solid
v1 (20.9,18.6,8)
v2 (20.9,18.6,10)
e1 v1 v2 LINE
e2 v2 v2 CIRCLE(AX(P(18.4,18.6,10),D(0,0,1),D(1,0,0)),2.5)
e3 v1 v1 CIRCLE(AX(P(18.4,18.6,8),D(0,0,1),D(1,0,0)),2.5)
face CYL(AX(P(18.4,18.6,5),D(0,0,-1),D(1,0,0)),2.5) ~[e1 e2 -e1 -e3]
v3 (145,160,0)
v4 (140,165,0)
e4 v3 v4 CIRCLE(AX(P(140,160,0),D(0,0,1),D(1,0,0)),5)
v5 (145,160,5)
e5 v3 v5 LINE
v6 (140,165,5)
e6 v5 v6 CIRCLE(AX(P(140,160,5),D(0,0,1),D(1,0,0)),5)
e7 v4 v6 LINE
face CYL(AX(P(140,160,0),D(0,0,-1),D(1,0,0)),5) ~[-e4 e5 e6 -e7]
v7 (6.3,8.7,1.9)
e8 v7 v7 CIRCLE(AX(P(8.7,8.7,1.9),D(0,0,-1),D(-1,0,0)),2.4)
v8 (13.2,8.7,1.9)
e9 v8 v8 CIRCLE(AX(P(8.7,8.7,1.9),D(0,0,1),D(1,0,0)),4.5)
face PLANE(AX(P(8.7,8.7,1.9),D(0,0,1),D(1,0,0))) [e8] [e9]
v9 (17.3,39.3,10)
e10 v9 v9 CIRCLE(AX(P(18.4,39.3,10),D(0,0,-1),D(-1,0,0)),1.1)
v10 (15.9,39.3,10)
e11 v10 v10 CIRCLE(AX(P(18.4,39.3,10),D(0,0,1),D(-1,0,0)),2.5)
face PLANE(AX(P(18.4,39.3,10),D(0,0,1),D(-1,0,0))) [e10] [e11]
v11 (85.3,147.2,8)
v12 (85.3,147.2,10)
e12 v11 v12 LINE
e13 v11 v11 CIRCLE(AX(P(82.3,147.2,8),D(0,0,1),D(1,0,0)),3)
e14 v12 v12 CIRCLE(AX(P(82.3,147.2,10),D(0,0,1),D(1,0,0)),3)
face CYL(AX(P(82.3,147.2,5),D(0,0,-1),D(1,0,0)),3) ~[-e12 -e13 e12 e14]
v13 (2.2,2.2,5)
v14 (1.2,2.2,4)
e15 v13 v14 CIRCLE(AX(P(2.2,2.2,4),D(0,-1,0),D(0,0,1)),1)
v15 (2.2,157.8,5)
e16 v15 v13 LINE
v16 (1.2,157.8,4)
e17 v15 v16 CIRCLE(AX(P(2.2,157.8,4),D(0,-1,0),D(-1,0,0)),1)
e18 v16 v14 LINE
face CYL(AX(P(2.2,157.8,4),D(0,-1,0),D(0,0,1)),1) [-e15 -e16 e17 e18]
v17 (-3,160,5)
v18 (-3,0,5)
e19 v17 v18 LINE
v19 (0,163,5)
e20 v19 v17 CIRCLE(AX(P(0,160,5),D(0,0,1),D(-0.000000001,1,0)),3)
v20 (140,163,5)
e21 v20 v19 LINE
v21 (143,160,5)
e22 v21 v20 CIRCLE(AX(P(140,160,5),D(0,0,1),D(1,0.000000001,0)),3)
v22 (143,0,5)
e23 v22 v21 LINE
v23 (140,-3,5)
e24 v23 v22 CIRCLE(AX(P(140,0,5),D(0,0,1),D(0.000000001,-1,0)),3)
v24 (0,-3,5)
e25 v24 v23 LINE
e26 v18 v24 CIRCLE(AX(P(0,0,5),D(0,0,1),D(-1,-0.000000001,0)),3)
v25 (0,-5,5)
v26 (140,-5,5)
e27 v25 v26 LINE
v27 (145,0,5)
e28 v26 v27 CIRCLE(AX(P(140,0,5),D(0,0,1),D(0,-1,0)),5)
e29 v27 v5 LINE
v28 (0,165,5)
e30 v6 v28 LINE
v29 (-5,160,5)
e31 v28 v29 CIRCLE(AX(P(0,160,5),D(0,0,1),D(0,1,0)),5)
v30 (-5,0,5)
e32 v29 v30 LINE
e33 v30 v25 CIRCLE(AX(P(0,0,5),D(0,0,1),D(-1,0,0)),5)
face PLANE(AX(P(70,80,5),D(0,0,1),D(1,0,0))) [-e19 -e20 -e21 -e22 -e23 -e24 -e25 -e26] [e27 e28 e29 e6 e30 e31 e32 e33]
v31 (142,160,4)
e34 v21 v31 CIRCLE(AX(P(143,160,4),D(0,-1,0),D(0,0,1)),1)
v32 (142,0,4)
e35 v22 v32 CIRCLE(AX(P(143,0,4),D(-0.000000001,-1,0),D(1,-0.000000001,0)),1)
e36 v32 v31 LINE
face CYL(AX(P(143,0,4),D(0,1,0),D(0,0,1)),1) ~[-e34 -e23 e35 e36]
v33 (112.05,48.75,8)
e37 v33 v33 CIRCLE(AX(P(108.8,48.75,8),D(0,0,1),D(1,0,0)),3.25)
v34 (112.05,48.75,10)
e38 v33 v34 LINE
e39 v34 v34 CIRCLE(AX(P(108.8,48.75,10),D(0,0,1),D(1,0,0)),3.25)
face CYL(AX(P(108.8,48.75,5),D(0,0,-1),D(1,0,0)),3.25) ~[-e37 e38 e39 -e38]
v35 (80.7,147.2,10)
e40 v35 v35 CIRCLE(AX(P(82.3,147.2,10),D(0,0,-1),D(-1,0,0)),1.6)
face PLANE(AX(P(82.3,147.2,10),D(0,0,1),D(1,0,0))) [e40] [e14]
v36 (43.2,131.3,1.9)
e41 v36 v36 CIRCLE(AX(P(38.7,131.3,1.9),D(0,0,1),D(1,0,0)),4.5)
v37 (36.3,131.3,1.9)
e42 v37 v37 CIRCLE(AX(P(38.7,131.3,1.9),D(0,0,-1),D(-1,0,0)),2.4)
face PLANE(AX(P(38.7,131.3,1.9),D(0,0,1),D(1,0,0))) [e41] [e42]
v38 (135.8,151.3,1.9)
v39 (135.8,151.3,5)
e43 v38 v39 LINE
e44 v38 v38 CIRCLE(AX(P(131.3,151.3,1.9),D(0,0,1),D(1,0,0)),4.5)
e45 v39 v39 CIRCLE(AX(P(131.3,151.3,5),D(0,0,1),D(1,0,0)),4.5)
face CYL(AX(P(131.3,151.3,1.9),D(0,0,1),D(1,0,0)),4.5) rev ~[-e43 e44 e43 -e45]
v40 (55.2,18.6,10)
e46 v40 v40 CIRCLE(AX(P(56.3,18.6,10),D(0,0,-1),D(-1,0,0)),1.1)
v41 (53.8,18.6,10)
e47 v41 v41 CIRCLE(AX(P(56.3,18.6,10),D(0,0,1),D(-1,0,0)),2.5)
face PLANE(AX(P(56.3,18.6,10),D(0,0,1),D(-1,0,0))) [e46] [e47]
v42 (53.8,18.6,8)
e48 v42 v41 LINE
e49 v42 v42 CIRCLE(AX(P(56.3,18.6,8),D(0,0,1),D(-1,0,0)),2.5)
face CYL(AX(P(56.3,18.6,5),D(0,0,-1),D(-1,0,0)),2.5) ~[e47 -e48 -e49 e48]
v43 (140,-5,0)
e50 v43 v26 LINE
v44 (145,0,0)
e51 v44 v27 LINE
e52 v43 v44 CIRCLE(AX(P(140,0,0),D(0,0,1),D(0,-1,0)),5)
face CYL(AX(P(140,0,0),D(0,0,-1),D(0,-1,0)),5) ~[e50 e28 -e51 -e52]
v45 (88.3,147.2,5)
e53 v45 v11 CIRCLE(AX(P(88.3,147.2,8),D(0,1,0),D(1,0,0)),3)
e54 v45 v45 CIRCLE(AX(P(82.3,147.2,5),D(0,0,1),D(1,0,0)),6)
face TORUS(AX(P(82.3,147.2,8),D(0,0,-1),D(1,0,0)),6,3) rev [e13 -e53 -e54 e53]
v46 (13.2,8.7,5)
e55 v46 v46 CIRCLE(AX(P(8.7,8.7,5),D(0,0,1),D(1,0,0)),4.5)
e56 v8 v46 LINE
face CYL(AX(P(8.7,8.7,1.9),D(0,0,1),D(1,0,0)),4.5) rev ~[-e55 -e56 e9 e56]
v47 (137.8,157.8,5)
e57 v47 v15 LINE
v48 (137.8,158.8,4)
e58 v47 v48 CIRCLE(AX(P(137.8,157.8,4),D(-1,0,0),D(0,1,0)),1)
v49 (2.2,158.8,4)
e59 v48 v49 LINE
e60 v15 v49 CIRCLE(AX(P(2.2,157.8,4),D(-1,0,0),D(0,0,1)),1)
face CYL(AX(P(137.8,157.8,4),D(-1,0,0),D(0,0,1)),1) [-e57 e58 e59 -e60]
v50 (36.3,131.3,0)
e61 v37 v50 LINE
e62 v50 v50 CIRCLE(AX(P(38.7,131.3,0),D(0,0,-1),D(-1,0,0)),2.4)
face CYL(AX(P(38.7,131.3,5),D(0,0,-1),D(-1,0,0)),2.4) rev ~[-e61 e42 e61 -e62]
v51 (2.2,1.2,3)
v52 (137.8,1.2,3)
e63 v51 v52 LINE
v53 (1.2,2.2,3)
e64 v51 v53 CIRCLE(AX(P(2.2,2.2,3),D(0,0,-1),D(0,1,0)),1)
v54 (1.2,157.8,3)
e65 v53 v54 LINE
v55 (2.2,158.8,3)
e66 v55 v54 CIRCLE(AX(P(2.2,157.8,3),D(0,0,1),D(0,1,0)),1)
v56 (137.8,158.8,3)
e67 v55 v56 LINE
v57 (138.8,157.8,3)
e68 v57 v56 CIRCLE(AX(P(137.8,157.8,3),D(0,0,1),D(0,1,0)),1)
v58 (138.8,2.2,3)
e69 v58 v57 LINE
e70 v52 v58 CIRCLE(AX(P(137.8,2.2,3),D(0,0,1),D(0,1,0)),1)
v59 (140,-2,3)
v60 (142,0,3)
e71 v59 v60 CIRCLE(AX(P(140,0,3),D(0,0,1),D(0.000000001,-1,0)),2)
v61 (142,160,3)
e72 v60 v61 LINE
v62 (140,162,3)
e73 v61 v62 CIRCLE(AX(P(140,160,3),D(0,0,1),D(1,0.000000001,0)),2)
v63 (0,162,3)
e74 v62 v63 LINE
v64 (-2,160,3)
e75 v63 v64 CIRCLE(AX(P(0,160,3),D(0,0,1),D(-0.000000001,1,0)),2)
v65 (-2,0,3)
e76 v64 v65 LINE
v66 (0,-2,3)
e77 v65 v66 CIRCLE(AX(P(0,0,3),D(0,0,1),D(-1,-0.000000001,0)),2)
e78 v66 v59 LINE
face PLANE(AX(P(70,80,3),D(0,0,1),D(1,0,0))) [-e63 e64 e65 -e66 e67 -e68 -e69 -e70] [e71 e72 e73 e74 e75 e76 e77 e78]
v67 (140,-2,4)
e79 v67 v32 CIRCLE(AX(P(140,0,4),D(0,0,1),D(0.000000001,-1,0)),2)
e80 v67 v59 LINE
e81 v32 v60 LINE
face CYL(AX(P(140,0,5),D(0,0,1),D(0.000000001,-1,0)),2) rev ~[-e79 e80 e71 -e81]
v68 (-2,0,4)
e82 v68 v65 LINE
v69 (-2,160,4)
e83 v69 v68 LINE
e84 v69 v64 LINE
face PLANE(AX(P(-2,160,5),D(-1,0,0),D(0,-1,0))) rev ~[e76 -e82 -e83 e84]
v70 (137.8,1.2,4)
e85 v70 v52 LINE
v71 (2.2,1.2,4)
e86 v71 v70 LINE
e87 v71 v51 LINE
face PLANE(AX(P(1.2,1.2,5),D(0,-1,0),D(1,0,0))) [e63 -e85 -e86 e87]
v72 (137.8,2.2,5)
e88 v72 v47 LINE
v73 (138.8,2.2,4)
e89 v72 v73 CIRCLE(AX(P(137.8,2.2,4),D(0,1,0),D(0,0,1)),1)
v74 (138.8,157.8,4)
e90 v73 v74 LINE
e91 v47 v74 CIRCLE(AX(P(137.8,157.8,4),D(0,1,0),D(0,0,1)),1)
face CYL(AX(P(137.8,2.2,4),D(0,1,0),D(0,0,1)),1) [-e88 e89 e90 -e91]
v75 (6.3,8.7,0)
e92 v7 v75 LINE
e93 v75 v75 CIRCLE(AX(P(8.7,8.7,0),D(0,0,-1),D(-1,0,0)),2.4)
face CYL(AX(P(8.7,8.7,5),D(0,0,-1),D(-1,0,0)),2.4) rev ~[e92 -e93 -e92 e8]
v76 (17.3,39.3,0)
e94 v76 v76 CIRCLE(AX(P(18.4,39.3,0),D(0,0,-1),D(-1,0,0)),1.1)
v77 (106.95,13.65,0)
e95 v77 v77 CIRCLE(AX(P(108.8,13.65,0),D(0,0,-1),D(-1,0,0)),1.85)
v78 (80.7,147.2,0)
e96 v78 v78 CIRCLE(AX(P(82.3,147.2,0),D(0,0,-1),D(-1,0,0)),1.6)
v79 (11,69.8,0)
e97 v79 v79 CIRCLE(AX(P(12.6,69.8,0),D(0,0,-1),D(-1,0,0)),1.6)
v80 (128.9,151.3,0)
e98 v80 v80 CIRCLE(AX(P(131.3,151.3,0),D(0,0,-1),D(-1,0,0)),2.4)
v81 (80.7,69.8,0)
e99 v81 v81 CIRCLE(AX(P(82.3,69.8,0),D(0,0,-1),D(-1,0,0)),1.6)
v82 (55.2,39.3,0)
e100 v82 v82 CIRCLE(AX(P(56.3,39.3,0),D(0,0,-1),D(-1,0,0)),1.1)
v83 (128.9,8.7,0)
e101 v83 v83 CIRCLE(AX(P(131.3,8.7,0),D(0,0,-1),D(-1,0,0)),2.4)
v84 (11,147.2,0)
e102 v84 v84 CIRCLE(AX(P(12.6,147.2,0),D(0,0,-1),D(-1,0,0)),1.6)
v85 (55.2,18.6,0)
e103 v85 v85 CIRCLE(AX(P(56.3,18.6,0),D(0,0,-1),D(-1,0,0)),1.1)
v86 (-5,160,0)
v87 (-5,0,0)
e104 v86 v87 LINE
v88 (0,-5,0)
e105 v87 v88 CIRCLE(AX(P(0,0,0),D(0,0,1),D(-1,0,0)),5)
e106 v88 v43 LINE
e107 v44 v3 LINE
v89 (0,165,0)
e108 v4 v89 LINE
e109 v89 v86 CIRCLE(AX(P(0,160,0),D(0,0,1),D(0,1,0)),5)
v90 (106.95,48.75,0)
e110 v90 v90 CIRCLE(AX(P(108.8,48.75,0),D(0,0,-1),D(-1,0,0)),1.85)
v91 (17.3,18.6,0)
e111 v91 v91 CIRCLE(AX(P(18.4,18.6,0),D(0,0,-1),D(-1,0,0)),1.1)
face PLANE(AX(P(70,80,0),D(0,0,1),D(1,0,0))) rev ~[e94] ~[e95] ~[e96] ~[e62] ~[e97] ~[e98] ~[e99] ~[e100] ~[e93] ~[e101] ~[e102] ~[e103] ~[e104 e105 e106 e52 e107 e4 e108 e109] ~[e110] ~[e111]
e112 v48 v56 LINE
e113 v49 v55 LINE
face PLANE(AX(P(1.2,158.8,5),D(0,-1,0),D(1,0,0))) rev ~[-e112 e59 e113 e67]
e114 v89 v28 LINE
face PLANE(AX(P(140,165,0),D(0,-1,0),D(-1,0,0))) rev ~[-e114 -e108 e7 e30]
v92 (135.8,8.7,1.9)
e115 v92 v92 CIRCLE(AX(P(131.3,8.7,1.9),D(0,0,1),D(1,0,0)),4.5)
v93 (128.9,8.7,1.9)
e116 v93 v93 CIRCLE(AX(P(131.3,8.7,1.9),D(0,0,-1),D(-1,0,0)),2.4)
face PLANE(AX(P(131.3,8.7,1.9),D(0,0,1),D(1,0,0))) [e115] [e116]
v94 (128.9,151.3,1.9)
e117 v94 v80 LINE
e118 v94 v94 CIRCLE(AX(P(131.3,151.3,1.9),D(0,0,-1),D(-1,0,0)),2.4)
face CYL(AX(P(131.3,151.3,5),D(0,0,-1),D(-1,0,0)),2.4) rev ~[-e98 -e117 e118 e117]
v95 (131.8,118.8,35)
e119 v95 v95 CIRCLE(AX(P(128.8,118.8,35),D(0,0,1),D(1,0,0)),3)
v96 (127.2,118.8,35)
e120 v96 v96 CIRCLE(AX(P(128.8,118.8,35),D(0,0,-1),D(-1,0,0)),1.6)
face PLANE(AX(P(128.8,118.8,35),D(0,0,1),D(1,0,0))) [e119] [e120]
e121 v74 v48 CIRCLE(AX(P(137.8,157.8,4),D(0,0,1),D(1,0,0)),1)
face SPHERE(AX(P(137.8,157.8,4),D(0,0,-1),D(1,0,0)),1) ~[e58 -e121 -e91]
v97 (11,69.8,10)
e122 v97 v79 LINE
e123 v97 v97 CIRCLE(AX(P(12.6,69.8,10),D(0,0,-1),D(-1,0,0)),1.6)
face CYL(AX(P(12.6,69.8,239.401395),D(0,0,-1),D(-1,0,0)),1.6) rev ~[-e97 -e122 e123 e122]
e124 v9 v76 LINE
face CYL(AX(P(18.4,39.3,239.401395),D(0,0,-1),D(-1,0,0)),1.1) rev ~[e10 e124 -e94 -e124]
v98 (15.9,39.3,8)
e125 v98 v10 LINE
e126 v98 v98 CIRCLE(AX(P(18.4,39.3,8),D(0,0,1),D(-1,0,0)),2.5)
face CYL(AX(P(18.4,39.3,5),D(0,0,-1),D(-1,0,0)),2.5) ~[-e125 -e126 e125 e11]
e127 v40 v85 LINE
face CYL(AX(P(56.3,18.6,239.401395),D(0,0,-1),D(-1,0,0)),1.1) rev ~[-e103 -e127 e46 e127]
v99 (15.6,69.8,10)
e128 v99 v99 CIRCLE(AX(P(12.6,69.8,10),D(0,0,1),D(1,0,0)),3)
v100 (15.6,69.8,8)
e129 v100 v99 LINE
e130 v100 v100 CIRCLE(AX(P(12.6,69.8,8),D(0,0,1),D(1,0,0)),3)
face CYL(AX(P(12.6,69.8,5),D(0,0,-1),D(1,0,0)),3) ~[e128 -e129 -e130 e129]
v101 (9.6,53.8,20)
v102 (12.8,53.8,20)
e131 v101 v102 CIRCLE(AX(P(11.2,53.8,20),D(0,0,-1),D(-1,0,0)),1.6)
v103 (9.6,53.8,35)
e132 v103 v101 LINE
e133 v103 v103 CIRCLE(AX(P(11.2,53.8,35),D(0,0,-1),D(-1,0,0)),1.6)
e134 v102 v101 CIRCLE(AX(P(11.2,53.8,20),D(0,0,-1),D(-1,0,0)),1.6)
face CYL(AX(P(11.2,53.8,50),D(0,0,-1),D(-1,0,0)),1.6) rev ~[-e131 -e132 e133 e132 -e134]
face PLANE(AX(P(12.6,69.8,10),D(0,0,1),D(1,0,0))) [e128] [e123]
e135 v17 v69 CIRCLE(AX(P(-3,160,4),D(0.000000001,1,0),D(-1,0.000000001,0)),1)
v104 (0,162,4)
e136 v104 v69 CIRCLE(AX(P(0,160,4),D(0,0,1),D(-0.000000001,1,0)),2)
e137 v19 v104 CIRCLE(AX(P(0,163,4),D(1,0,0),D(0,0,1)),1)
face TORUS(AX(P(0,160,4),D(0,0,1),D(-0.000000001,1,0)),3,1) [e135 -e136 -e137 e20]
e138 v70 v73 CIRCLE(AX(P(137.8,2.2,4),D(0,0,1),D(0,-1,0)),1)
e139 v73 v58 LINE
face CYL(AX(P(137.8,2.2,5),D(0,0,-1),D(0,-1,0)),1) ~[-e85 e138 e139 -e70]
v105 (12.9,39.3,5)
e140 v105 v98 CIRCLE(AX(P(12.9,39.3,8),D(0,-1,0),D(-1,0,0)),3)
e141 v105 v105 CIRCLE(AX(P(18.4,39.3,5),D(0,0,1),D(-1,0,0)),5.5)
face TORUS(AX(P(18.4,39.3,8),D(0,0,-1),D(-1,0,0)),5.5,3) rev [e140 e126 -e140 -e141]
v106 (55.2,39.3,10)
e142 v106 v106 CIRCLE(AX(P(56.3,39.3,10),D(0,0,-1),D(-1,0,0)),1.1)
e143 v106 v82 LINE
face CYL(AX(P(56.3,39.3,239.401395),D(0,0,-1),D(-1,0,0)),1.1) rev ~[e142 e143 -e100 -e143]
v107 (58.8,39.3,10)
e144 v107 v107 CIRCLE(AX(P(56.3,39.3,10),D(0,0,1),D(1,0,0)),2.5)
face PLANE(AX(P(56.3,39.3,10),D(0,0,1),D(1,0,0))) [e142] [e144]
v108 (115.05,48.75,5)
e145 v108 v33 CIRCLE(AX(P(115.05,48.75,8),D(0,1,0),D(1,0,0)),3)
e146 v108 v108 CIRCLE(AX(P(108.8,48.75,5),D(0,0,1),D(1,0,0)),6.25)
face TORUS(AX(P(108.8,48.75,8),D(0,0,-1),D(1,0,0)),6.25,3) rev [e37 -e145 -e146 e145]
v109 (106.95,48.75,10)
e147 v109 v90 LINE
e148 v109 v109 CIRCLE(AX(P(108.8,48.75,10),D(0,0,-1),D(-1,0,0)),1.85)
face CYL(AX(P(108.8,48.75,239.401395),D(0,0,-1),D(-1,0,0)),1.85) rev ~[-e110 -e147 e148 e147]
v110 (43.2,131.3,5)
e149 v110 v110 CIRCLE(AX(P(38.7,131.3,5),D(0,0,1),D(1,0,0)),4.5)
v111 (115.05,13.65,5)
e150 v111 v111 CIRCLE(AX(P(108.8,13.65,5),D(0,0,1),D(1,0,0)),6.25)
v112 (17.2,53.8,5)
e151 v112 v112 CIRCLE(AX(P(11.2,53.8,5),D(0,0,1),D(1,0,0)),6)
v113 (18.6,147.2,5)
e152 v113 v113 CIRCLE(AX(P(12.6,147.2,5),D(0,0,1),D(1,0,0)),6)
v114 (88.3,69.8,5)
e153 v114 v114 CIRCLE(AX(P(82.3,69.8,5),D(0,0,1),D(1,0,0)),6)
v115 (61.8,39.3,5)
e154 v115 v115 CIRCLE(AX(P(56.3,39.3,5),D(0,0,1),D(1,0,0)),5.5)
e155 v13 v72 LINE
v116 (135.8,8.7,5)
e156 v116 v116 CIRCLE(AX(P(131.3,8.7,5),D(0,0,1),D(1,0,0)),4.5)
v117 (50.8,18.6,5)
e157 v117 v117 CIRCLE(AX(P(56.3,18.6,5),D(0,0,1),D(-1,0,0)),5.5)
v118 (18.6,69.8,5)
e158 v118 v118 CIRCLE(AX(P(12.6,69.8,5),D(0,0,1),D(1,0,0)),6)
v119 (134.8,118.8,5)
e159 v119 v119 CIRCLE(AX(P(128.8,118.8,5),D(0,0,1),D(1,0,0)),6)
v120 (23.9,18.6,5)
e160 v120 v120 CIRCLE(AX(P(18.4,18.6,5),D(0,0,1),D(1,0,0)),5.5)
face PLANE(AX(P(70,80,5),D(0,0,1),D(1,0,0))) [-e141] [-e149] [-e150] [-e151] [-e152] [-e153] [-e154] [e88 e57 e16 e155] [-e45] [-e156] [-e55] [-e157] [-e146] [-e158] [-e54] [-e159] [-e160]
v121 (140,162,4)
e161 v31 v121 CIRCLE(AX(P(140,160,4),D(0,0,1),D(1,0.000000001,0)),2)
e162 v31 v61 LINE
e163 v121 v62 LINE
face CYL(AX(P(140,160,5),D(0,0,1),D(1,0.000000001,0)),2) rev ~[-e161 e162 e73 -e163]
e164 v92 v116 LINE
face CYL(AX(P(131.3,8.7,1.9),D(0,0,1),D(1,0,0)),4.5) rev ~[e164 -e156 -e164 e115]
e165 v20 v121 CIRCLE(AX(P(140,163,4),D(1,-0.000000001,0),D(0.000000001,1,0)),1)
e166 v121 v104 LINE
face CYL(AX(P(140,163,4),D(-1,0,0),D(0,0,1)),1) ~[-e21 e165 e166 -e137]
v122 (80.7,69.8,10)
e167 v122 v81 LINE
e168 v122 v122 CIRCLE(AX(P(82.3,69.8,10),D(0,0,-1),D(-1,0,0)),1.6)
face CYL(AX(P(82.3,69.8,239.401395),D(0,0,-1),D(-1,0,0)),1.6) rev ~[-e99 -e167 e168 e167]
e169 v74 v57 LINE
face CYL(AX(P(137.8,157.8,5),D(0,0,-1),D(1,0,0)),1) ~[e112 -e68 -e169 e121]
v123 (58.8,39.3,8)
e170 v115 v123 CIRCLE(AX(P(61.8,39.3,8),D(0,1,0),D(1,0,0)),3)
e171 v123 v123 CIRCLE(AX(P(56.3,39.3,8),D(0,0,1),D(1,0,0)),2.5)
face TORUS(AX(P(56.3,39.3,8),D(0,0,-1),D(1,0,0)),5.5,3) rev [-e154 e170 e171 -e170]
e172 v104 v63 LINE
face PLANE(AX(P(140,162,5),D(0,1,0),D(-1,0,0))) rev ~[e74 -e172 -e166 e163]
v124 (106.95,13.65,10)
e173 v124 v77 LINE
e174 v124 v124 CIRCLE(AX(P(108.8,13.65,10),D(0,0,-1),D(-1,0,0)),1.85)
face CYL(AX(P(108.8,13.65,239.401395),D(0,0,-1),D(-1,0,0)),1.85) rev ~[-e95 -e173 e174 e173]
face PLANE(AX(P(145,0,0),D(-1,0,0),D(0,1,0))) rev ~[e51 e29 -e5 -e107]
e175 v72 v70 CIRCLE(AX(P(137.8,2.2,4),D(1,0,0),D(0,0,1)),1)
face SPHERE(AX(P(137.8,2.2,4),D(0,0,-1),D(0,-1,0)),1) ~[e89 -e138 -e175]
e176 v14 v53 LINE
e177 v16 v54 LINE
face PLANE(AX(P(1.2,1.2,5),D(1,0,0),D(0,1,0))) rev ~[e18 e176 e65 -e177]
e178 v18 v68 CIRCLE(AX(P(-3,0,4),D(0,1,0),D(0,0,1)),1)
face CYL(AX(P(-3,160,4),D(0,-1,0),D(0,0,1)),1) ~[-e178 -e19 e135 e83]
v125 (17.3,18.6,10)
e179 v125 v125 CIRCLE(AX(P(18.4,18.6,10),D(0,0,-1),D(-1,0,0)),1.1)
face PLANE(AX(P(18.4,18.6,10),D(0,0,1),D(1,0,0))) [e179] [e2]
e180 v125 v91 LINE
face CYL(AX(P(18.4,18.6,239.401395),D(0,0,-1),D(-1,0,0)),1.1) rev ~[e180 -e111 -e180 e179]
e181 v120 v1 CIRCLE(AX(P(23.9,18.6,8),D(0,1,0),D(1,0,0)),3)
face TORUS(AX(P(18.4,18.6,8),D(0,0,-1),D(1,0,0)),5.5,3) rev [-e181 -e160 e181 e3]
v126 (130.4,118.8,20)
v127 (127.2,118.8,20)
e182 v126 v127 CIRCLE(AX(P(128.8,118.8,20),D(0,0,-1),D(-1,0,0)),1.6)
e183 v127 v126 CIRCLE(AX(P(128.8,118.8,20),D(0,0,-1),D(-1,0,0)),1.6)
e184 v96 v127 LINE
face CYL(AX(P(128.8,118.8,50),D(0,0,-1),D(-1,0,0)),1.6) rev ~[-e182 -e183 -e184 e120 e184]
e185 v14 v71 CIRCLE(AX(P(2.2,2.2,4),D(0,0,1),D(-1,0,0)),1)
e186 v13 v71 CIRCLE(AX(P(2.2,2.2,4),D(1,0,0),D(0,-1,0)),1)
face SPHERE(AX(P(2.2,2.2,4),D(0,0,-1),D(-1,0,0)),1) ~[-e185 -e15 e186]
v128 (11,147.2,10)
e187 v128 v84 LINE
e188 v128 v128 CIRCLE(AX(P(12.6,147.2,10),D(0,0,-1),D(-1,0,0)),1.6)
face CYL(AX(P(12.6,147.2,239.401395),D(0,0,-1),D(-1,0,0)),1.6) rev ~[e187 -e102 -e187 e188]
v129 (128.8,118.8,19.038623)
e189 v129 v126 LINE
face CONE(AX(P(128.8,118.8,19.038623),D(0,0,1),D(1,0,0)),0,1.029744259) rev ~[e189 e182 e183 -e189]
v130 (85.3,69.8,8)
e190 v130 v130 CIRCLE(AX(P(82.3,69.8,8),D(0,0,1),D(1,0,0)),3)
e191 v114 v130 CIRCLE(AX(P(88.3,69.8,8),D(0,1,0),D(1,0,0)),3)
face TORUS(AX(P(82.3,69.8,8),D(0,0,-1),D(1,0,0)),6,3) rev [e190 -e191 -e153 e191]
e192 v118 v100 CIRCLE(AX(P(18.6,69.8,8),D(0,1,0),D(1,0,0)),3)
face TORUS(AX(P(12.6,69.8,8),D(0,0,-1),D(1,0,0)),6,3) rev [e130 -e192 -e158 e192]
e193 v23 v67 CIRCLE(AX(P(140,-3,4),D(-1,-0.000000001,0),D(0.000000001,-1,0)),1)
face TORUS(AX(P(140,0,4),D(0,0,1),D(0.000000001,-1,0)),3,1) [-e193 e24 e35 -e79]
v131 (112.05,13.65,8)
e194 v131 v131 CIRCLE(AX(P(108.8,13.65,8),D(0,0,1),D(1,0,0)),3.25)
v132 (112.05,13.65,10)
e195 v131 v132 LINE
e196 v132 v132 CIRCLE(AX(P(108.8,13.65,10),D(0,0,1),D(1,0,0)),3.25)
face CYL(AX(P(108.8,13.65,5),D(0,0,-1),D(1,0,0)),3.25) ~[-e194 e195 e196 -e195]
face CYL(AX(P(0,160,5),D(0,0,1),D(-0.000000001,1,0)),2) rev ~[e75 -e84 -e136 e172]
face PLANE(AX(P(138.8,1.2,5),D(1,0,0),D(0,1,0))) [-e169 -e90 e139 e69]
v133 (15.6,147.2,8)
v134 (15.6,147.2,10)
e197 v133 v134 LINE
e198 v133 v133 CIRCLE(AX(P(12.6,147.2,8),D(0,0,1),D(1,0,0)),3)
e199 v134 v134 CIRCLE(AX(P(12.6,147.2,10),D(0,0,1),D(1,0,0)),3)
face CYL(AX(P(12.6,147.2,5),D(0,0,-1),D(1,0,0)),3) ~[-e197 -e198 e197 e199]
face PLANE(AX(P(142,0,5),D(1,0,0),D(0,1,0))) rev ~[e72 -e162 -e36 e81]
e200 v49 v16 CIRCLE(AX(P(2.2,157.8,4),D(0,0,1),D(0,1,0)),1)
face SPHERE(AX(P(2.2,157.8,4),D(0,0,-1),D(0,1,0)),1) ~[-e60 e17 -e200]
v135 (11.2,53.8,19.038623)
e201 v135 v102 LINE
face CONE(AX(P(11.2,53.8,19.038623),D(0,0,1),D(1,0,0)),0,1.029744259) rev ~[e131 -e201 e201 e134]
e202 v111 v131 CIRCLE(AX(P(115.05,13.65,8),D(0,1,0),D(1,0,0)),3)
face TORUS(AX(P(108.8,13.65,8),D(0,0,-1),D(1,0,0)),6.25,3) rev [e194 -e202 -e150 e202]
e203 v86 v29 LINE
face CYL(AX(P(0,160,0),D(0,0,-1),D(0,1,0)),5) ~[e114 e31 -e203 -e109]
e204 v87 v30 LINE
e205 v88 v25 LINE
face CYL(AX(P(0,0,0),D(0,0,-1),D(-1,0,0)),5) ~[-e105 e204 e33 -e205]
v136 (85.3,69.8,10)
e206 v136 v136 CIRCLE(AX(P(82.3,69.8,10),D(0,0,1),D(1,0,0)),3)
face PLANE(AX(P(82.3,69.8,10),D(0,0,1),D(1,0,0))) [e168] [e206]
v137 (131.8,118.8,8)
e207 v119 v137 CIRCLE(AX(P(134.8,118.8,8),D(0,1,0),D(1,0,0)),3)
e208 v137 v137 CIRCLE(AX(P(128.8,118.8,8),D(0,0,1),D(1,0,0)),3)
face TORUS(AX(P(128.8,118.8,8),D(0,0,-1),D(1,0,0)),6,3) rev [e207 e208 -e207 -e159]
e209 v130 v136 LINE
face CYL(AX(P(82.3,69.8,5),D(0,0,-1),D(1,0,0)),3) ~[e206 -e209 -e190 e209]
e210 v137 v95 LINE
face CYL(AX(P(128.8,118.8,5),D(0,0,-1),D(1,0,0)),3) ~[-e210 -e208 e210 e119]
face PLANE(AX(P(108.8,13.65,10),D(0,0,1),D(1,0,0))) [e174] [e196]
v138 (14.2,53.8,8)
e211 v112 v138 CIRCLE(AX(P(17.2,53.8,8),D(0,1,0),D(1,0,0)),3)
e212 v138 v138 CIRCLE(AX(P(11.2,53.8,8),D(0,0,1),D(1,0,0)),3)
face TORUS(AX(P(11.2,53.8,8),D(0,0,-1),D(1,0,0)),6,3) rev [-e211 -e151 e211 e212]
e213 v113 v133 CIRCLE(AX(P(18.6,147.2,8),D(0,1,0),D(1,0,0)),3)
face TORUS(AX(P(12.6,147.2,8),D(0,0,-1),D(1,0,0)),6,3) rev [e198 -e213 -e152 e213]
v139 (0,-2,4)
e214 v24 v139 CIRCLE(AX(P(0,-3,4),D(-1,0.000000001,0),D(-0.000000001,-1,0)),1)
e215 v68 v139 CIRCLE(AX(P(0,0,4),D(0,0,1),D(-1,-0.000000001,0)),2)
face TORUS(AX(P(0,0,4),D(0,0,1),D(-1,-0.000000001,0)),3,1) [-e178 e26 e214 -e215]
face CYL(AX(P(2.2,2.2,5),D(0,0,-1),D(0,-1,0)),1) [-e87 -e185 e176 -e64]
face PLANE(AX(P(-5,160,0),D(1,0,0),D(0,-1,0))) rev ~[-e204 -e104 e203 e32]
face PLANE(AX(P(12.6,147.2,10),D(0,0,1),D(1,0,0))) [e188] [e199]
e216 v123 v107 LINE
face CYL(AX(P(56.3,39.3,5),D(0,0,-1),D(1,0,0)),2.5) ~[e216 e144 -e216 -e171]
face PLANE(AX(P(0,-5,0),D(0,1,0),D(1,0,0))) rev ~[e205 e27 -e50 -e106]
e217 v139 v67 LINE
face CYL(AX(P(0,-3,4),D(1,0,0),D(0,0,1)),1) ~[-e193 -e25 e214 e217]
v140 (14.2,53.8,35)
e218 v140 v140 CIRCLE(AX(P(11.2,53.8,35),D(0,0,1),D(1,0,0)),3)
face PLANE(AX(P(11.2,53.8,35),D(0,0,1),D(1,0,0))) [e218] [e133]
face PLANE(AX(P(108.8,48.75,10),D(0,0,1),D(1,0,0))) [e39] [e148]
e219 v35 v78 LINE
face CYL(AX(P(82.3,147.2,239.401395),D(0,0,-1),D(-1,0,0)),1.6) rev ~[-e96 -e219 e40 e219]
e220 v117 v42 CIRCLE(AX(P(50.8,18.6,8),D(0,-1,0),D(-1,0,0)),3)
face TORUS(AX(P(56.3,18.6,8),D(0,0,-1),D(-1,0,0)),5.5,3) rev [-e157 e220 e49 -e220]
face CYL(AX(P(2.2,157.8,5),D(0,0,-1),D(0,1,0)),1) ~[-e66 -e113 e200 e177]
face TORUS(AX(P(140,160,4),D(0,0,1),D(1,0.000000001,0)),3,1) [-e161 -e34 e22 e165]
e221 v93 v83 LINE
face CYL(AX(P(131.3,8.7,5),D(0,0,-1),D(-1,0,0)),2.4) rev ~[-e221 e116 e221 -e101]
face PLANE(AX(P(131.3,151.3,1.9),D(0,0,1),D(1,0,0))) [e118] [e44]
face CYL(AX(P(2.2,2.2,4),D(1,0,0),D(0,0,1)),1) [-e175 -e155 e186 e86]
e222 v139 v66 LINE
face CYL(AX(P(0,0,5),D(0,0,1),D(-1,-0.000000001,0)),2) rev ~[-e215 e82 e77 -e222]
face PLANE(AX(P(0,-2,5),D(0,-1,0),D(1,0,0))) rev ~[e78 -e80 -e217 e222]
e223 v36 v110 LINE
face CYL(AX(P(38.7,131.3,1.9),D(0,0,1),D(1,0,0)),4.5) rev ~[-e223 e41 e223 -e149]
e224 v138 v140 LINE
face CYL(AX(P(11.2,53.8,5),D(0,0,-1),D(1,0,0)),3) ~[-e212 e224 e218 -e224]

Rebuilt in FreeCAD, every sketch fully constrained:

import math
import FreeCAD as App
import Part
import Sketcher
from FreeCAD import Vector
Q = App.Units.Quantity


def edges_at(feature, points):
    """Names of the edges that pass closest to the given points."""
    edges = feature.Shape.Edges
    near = lambda p: min(range(len(edges)), key=lambda i: edges[i].distToShape(Part.Vertex(*p))[0])
    return sorted({f"Edge{near(p) + 1}" for p in points})

doc = App.newDocument("Part")
params = doc.addObject("Spreadsheet::Sheet", "Params")
for row, (alias, value) in enumerate([
    ("sketch1_radius", "5 mm"),
    ("sketch1_width", "140 mm"),
    ("sketch1_height", "160 mm"),
    ("pad1_length", "5 mm"),
    ("sketch2_radius", "2 mm"),
    ("sketch2_width", "140 mm"),
    ("sketch2_height", "160 mm"),
    ("sketch2_width2", "137.6 mm"),
    ("sketch2_height2", "157.6 mm"),
    ("pocket1_length", "2 mm"),
    ("fillet_radius", "1 mm"),
    ("fillet2_radius", "1 mm"),
    ("sketch3_diameter", "6 mm"),
    ("sketch3_diameter2", "5 mm"),
    ("sketch3_diameter3", "6.5 mm"),
    ("pad2_length", "5 mm"),
    ("sketch4_diameter", "6 mm"),
    ("pad3_length", "30 mm"),
    ("fillet3_radius", "3 mm"),
    ("sketch5_diameter", "3.7 mm"),
    ("hole_diameter", "3.7 mm"),
    ("sketch6_diameter", "2.2 mm"),
    ("hole2_diameter", "2.2 mm"),
    ("sketch7_diameter", "3.2 mm"),
    ("hole3_diameter", "3.2 mm"),
    ("sketch8_diameter", "4.8 mm"),
    ("hole4_diameter", "4.8 mm"),
    ("hole4_cbore_diameter", "9 mm"),
    ("hole4_cbore_depth", "3.1 mm"),
    ("fillet4_radius", "1 mm"),
    ("sketch9_diameter", "3.2 mm"),
    ("hole5_diameter", "3.2 mm"),
    ("hole5_depth", "15 mm"),
], start=1):
    params.set(f"A{row}", alias)
    params.set(f"B{row}", "=" + value)
    params.setAlias(f"B{row}", alias)

body = doc.addObject("PartDesign::Body", "Body")

sketch1 = body.newObject("Sketcher::SketchObject", "Sketch")
sketch1.AttachmentSupport = (doc.getObject("XY_Plane"), [""])
sketch1.MapMode = "FlatFace"
sketch1.addGeometry(Part.LineSegment(Vector(0, -5, 0), Vector(140, -5, 0)), False)
sketch1.addGeometry(Part.ArcOfCircle(Part.Circle(Vector(140, 0, 0), Vector(0, 0, 1), 5), math.radians(-90), math.radians(0)), False)
sketch1.addGeometry(Part.LineSegment(Vector(145, 0, 0), Vector(145, 160, 0)), False)
sketch1.addGeometry(Part.ArcOfCircle(Part.Circle(Vector(140, 160, 0), Vector(0, 0, 1), 5), math.radians(0), math.radians(90)), False)
sketch1.addGeometry(Part.LineSegment(Vector(140, 165, 0), Vector(0, 165, 0)), False)
sketch1.addGeometry(Part.ArcOfCircle(Part.Circle(Vector(0, 160, 0), Vector(0, 0, 1), 5), math.radians(90), math.radians(180)), False)
sketch1.addGeometry(Part.LineSegment(Vector(-5, 160, 0), Vector(-5, 0, 0)), False)
sketch1.addGeometry(Part.ArcOfCircle(Part.Circle(Vector(0, 0, 0), Vector(0, 0, 1), 5), math.radians(180), math.radians(270)), False)
sketch1.addConstraint(Sketcher.Constraint("Tangent", 0, 2, 1, 1))
sketch1.addConstraint(Sketcher.Constraint("Tangent", 1, 2, 2, 1))
sketch1.addConstraint(Sketcher.Constraint("Tangent", 2, 2, 3, 1))
sketch1.addConstraint(Sketcher.Constraint("Tangent", 3, 2, 4, 1))
sketch1.addConstraint(Sketcher.Constraint("Tangent", 4, 2, 5, 1))
sketch1.addConstraint(Sketcher.Constraint("Tangent", 5, 2, 6, 1))
sketch1.addConstraint(Sketcher.Constraint("Tangent", 6, 2, 7, 1))
sketch1.addConstraint(Sketcher.Constraint("Tangent", 7, 2, 0, 1))
sketch1.addConstraint(Sketcher.Constraint("Horizontal", 0))
sketch1.addConstraint(Sketcher.Constraint("Vertical", 2))
sketch1.addConstraint(Sketcher.Constraint("Horizontal", 4))
sketch1.addConstraint(Sketcher.Constraint("Vertical", 6))
sketch1.addConstraint(Sketcher.Constraint("Coincident", 7, 3, -1, 1))
sketch1.addConstraint(Sketcher.Constraint("Equal", 1, 3))
sketch1.addConstraint(Sketcher.Constraint("Equal", 3, 5))
sketch1.addConstraint(Sketcher.Constraint("Equal", 5, 7))
sketch1.addConstraint(Sketcher.Constraint("Radius", 1, Q("5 mm")))
sketch1.addConstraint(Sketcher.Constraint("DistanceX", 0, 1, 0, 2, Q("140 mm")))
sketch1.addConstraint(Sketcher.Constraint("DistanceY", 2, 1, 2, 2, Q("160 mm")))
sketch1.setExpression("Constraints[16]", "Params.sketch1_radius")
sketch1.setExpression("Constraints[17]", "Params.sketch1_width")
sketch1.setExpression("Constraints[18]", "Params.sketch1_height")
pad1 = body.newObject("PartDesign::Pad", "Pad")
pad1.Profile = sketch1
pad1.setExpression("Length", "Params.pad1_length")

sketch2 = body.newObject("Sketcher::SketchObject", "Sketch001")
sketch2.AttachmentSupport = (doc.getObject("XY_Plane"), [""])
sketch2.MapMode = "FlatFace"
sketch2.AttachmentOffset = App.Placement(Vector(0, 0, 5), App.Rotation())
sketch2.addGeometry(Part.LineSegment(Vector(142, 0, 0), Vector(142, 160, 0)), False)
sketch2.addGeometry(Part.ArcOfCircle(Part.Circle(Vector(140, 160, 0), Vector(0, 0, 1), 2), math.radians(0), math.radians(90)), False)
sketch2.addGeometry(Part.LineSegment(Vector(140, 162, 0), Vector(0, 162, 0)), False)
sketch2.addGeometry(Part.ArcOfCircle(Part.Circle(Vector(0, 160, 0), Vector(0, 0, 1), 2), math.radians(90), math.radians(180)), False)
sketch2.addGeometry(Part.LineSegment(Vector(-2, 160, 0), Vector(-2, 0, 0)), False)
sketch2.addGeometry(Part.ArcOfCircle(Part.Circle(Vector(0, 0, 0), Vector(0, 0, 1), 2), math.radians(-180), math.radians(-90)), False)
sketch2.addGeometry(Part.LineSegment(Vector(0, -2, 0), Vector(140, -2, 0)), False)
sketch2.addGeometry(Part.ArcOfCircle(Part.Circle(Vector(140, 0, 0), Vector(0, 0, 1), 2), math.radians(-90), math.radians(0)), False)
sketch2.addGeometry(Part.LineSegment(Vector(138.8, 1.2, 0), Vector(1.2, 1.2, 0)), False)
sketch2.addGeometry(Part.LineSegment(Vector(1.2, 1.2, 0), Vector(1.2, 158.8, 0)), False)
sketch2.addGeometry(Part.LineSegment(Vector(1.2, 158.8, 0), Vector(138.8, 158.8, 0)), False)
sketch2.addGeometry(Part.LineSegment(Vector(138.8, 158.8, 0), Vector(138.8, 1.2, 0)), False)
sketch2.addConstraint(Sketcher.Constraint("Tangent", 0, 2, 1, 1))
sketch2.addConstraint(Sketcher.Constraint("Tangent", 1, 2, 2, 1))
sketch2.addConstraint(Sketcher.Constraint("Tangent", 2, 2, 3, 1))
sketch2.addConstraint(Sketcher.Constraint("Tangent", 3, 2, 4, 1))
sketch2.addConstraint(Sketcher.Constraint("Tangent", 4, 2, 5, 1))
sketch2.addConstraint(Sketcher.Constraint("Tangent", 5, 2, 6, 1))
sketch2.addConstraint(Sketcher.Constraint("Tangent", 6, 2, 7, 1))
sketch2.addConstraint(Sketcher.Constraint("Tangent", 7, 2, 0, 1))
sketch2.addConstraint(Sketcher.Constraint("Coincident", 8, 2, 9, 1))
sketch2.addConstraint(Sketcher.Constraint("Coincident", 9, 2, 10, 1))
sketch2.addConstraint(Sketcher.Constraint("Coincident", 10, 2, 11, 1))
sketch2.addConstraint(Sketcher.Constraint("Coincident", 11, 2, 8, 1))
sketch2.addConstraint(Sketcher.Constraint("Vertical", 0))
sketch2.addConstraint(Sketcher.Constraint("Horizontal", 2))
sketch2.addConstraint(Sketcher.Constraint("Vertical", 4))
sketch2.addConstraint(Sketcher.Constraint("Horizontal", 6))
sketch2.addConstraint(Sketcher.Constraint("Horizontal", 8))
sketch2.addConstraint(Sketcher.Constraint("Vertical", 9))
sketch2.addConstraint(Sketcher.Constraint("Horizontal", 10))
sketch2.addConstraint(Sketcher.Constraint("Vertical", 11))
sketch2.addConstraint(Sketcher.Constraint("Coincident", 5, 3, -1, 1))
sketch2.addConstraint(Sketcher.Constraint("Equal", 1, 3))
sketch2.addConstraint(Sketcher.Constraint("Equal", 3, 5))
sketch2.addConstraint(Sketcher.Constraint("Equal", 5, 7))
sketch2.addConstraint(Sketcher.Constraint("Radius", 1, Q("2 mm")))
sketch2.addConstraint(Sketcher.Constraint("DistanceX", 2, 2, 2, 1, Q("140 mm")))
sketch2.addConstraint(Sketcher.Constraint("DistanceY", 0, 1, 0, 2, Q("160 mm")))
sketch2.addConstraint(Sketcher.Constraint("DistanceX", 8, 2, 8, 1, Q("137.6 mm")))
sketch2.addConstraint(Sketcher.Constraint("DistanceY", 9, 1, 9, 2, Q("157.6 mm")))
sketch2.addConstraint(Sketcher.Constraint("DistanceX", -1, 1, 8, 2, Q("1.2 mm")))
sketch2.addConstraint(Sketcher.Constraint("DistanceY", -1, 1, 8, 2, Q("1.2 mm")))
sketch2.setExpression("Constraints[24]", "Params.sketch2_radius")
sketch2.setExpression("Constraints[25]", "Params.sketch2_width")
sketch2.setExpression("Constraints[26]", "Params.sketch2_height")
sketch2.setExpression("Constraints[27]", "Params.sketch2_width2")
sketch2.setExpression("Constraints[28]", "Params.sketch2_height2")
pocket1 = body.newObject("PartDesign::Pocket", "Pocket")
pocket1.Profile = sketch2
pocket1.setExpression("Length", "Params.pocket1_length")
doc.recompute()

fillet = body.newObject("PartDesign::Fillet", "Fillet")
fillet.Base = (pocket1, edges_at(pocket1, [
    (141.414, -1.414, 5),
    (142, 80, 5),
    (141.414, 161.414, 5),
    (70, 162, 5),
    (-1.414, 161.414, 5),
    (-2, 80, 5),
    (-1.414, -1.414, 5),
    (70, -2, 5),
]))
fillet.setExpression("Radius", "Params.fillet_radius")
doc.recompute()

fillet2 = body.newObject("PartDesign::Fillet", "Fillet001")
fillet2.Base = (fillet, edges_at(fillet, [
    (1.2, 1.2, 4),
    (1.2, 158.8, 4),
    (138.8, 158.8, 4),
    (138.8, 1.2, 4),
]))
fillet2.setExpression("Radius", "Params.fillet2_radius")

sketch3 = body.newObject("Sketcher::SketchObject", "Sketch002")
sketch3.AttachmentSupport = (doc.getObject("XY_Plane"), [""])
sketch3.MapMode = "FlatFace"
sketch3.AttachmentOffset = App.Placement(Vector(0, 0, 5), App.Rotation())
sketch3.addGeometry(Part.Circle(Vector(12.6, 147.2, 0), Vector(0, 0, 1), 3), False)
sketch3.addGeometry(Part.Circle(Vector(82.3, 147.2, 0), Vector(0, 0, 1), 3), False)
sketch3.addGeometry(Part.Circle(Vector(82.3, 69.8, 0), Vector(0, 0, 1), 3), False)
sketch3.addGeometry(Part.Circle(Vector(12.6, 69.8, 0), Vector(0, 0, 1), 3), False)
sketch3.addGeometry(Part.Circle(Vector(108.8, 48.75, 0), Vector(0, 0, 1), 3.25), False)
sketch3.addGeometry(Part.Circle(Vector(108.8, 13.65, 0), Vector(0, 0, 1), 3.25), False)
sketch3.addGeometry(Part.Circle(Vector(56.3, 18.6, 0), Vector(0, 0, 1), 2.5), False)
sketch3.addGeometry(Part.Circle(Vector(18.4, 39.3, 0), Vector(0, 0, 1), 2.5), False)
sketch3.addGeometry(Part.Circle(Vector(18.4, 18.6, 0), Vector(0, 0, 1), 2.5), False)
sketch3.addGeometry(Part.Circle(Vector(56.3, 39.3, 0), Vector(0, 0, 1), 2.5), False)
sketch3.addConstraint(Sketcher.Constraint("Equal", 0, 1))
sketch3.addConstraint(Sketcher.Constraint("Equal", 1, 2))
sketch3.addConstraint(Sketcher.Constraint("Equal", 2, 3))
sketch3.addConstraint(Sketcher.Constraint("Equal", 4, 5))
sketch3.addConstraint(Sketcher.Constraint("Equal", 6, 7))
sketch3.addConstraint(Sketcher.Constraint("Equal", 7, 8))
sketch3.addConstraint(Sketcher.Constraint("Equal", 8, 9))
sketch3.addConstraint(Sketcher.Constraint("Horizontal", 0, 3, 1, 3))
sketch3.addConstraint(Sketcher.Constraint("Horizontal", 2, 3, 3, 3))
sketch3.addConstraint(Sketcher.Constraint("Horizontal", 6, 3, 8, 3))
sketch3.addConstraint(Sketcher.Constraint("Horizontal", 7, 3, 9, 3))
sketch3.addConstraint(Sketcher.Constraint("Vertical", 1, 3, 2, 3))
sketch3.addConstraint(Sketcher.Constraint("Vertical", 0, 3, 3, 3))
sketch3.addConstraint(Sketcher.Constraint("Vertical", 4, 3, 5, 3))
sketch3.addConstraint(Sketcher.Constraint("Vertical", 7, 3, 8, 3))
sketch3.addConstraint(Sketcher.Constraint("Vertical", 6, 3, 9, 3))
sketch3.addConstraint(Sketcher.Constraint("Diameter", 0, Q("6 mm")))
sketch3.addConstraint(Sketcher.Constraint("Diameter", 6, Q("5 mm")))
sketch3.addConstraint(Sketcher.Constraint("Diameter", 4, Q("6.5 mm")))
sketch3.addConstraint(Sketcher.Constraint("DistanceX", 6, 3, 2, 3, Q("26 mm")))
sketch3.addConstraint(Sketcher.Constraint("DistanceX", -1, 1, 0, 3, Q("12.6 mm")))
sketch3.addConstraint(Sketcher.Constraint("DistanceY", -1, 1, 0, 3, Q("147.2 mm")))
sketch3.addConstraint(Sketcher.Constraint("DistanceX", -1, 1, 1, 3, Q("82.3 mm")))
sketch3.addConstraint(Sketcher.Constraint("DistanceY", -1, 1, 2, 3, Q("69.8 mm")))
sketch3.addConstraint(Sketcher.Constraint("DistanceX", -1, 1, 4, 3, Q("108.8 mm")))
sketch3.addConstraint(Sketcher.Constraint("DistanceY", -1, 1, 6, 3, Q("18.6 mm")))
sketch3.addConstraint(Sketcher.Constraint("DistanceX", -1, 1, 7, 3, Q("18.4 mm")))
sketch3.addConstraint(Sketcher.Constraint("DistanceY", -1, 1, 7, 3, Q("39.3 mm")))
sketch3.addConstraint(Sketcher.Constraint("DistanceY", 5, 3, 4, 3, Q("35.1 mm")))
sketch3.addConstraint(Sketcher.Constraint("DistanceY", -1, 1, 4, 3, Q("48.75 mm")))
sketch3.setExpression("Constraints[16]", "Params.sketch3_diameter")
sketch3.setExpression("Constraints[17]", "Params.sketch3_diameter2")
sketch3.setExpression("Constraints[18]", "Params.sketch3_diameter3")
pad2 = body.newObject("PartDesign::Pad", "Pad001")
pad2.Profile = sketch3
pad2.setExpression("Length", "Params.pad2_length")

sketch4 = body.newObject("Sketcher::SketchObject", "Sketch003")
sketch4.AttachmentSupport = (doc.getObject("XY_Plane"), [""])
sketch4.MapMode = "FlatFace"
sketch4.AttachmentOffset = App.Placement(Vector(0, 0, 5), App.Rotation())
sketch4.addGeometry(Part.Circle(Vector(128.8, 118.8, 0), Vector(0, 0, 1), 3), False)
sketch4.addGeometry(Part.Circle(Vector(11.2, 53.8, 0), Vector(0, 0, 1), 3), False)
sketch4.addConstraint(Sketcher.Constraint("Equal", 0, 1))
sketch4.addConstraint(Sketcher.Constraint("Diameter", 0, Q("6 mm")))
sketch4.addConstraint(Sketcher.Constraint("DistanceY", 1, 3, 0, 3, Q("65 mm")))
sketch4.addConstraint(Sketcher.Constraint("DistanceX", -1, 1, 0, 3, Q("128.8 mm")))
sketch4.addConstraint(Sketcher.Constraint("DistanceY", -1, 1, 0, 3, Q("118.8 mm")))
sketch4.addConstraint(Sketcher.Constraint("DistanceX", -1, 1, 1, 3, Q("11.2 mm")))
sketch4.setExpression("Constraints[1]", "Params.sketch4_diameter")
pad3 = body.newObject("PartDesign::Pad", "Pad002")
pad3.Profile = sketch4
pad3.setExpression("Length", "Params.pad3_length")
doc.recompute()

fillet3 = body.newObject("PartDesign::Fillet", "Fillet002")
fillet3.Base = (pad3, edges_at(pad3, [
    (9.6, 147.2, 5),
    (79.3, 147.2, 5),
    (79.3, 69.8, 5),
    (9.6, 69.8, 5),
    (105.55, 48.75, 5),
    (105.55, 13.65, 5),
    (15.9, 18.6, 5),
    (58.8, 18.6, 5),
    (20.9, 39.3, 5),
    (53.8, 39.3, 5),
    (125.8, 118.8, 5),
    (8.2, 53.8, 5),
]))
fillet3.setExpression("Radius", "Params.fillet3_radius")

sketch5 = body.newObject("Sketcher::SketchObject", "Sketch004")
sketch5.AttachmentSupport = (doc.getObject("XY_Plane"), [""])
sketch5.MapMode = "FlatFace"
sketch5.AttachmentOffset = App.Placement(Vector(0, 0, 10), App.Rotation())
sketch5.addGeometry(Part.Circle(Vector(108.8, 13.65, 0), Vector(0, 0, 1), 1.85), False)
sketch5.addGeometry(Part.Circle(Vector(108.8, 48.75, 0), Vector(0, 0, 1), 1.85), False)
sketch5.addConstraint(Sketcher.Constraint("Equal", 0, 1))
sketch5.addConstraint(Sketcher.Constraint("Vertical", 0, 3, 1, 3))
sketch5.addConstraint(Sketcher.Constraint("Diameter", 0, Q("3.7 mm")))
sketch5.addConstraint(Sketcher.Constraint("DistanceX", -1, 1, 0, 3, Q("108.8 mm")))
sketch5.addConstraint(Sketcher.Constraint("DistanceY", 0, 3, 1, 3, Q("35.1 mm")))
sketch5.addConstraint(Sketcher.Constraint("DistanceY", -1, 1, 0, 3, Q("13.65 mm")))
sketch5.setExpression("Constraints[2]", "Params.sketch5_diameter")
doc.recompute()
hole = body.newObject("PartDesign::Hole", "Hole")
hole.Profile = sketch5
hole.ThreadType = "None"
hole.setExpression("Diameter", "Params.hole_diameter")
hole.DepthType = "ThroughAll"

sketch6 = body.newObject("Sketcher::SketchObject", "Sketch005")
sketch6.AttachmentSupport = (doc.getObject("XY_Plane"), [""])
sketch6.MapMode = "FlatFace"
sketch6.AttachmentOffset = App.Placement(Vector(0, 0, 10), App.Rotation())
sketch6.addGeometry(Part.Circle(Vector(18.4, 39.3, 0), Vector(0, 0, 1), 1.1), False)
sketch6.addGeometry(Part.Circle(Vector(18.4, 18.6, 0), Vector(0, 0, 1), 1.1), False)
sketch6.addGeometry(Part.Circle(Vector(56.3, 39.3, 0), Vector(0, 0, 1), 1.1), False)
sketch6.addGeometry(Part.Circle(Vector(56.3, 18.6, 0), Vector(0, 0, 1), 1.1), False)
sketch6.addConstraint(Sketcher.Constraint("Equal", 0, 1))
sketch6.addConstraint(Sketcher.Constraint("Equal", 1, 2))
sketch6.addConstraint(Sketcher.Constraint("Equal", 2, 3))
sketch6.addConstraint(Sketcher.Constraint("Horizontal", 0, 3, 2, 3))
sketch6.addConstraint(Sketcher.Constraint("Horizontal", 1, 3, 3, 3))
sketch6.addConstraint(Sketcher.Constraint("Vertical", 0, 3, 1, 3))
sketch6.addConstraint(Sketcher.Constraint("Vertical", 2, 3, 3, 3))
sketch6.addConstraint(Sketcher.Constraint("Diameter", 0, Q("2.2 mm")))
sketch6.addConstraint(Sketcher.Constraint("DistanceX", -1, 1, 0, 3, Q("18.4 mm")))
sketch6.addConstraint(Sketcher.Constraint("DistanceY", -1, 1, 0, 3, Q("39.3 mm")))
sketch6.addConstraint(Sketcher.Constraint("DistanceY", -1, 1, 1, 3, Q("18.6 mm")))
sketch6.addConstraint(Sketcher.Constraint("DistanceX", -1, 1, 2, 3, Q("56.3 mm")))
sketch6.setExpression("Constraints[7]", "Params.sketch6_diameter")
doc.recompute()
hole2 = body.newObject("PartDesign::Hole", "Hole001")
hole2.Profile = sketch6
hole2.ThreadType = "None"
hole2.setExpression("Diameter", "Params.hole2_diameter")
hole2.DepthType = "ThroughAll"

sketch7 = body.newObject("Sketcher::SketchObject", "Sketch006")
sketch7.AttachmentSupport = (doc.getObject("XY_Plane"), [""])
sketch7.MapMode = "FlatFace"
sketch7.AttachmentOffset = App.Placement(Vector(0, 0, 10), App.Rotation())
sketch7.addGeometry(Part.Circle(Vector(12.6, 147.2, 0), Vector(0, 0, 1), 1.6), False)
sketch7.addGeometry(Part.Circle(Vector(82.3, 147.2, 0), Vector(0, 0, 1), 1.6), False)
sketch7.addGeometry(Part.Circle(Vector(82.3, 69.8, 0), Vector(0, 0, 1), 1.6), False)
sketch7.addGeometry(Part.Circle(Vector(12.6, 69.8, 0), Vector(0, 0, 1), 1.6), False)
sketch7.addConstraint(Sketcher.Constraint("Equal", 0, 1))
sketch7.addConstraint(Sketcher.Constraint("Equal", 1, 2))
sketch7.addConstraint(Sketcher.Constraint("Equal", 2, 3))
sketch7.addConstraint(Sketcher.Constraint("Horizontal", 0, 3, 1, 3))
sketch7.addConstraint(Sketcher.Constraint("Horizontal", 2, 3, 3, 3))
sketch7.addConstraint(Sketcher.Constraint("Vertical", 1, 3, 2, 3))
sketch7.addConstraint(Sketcher.Constraint("Vertical", 0, 3, 3, 3))
sketch7.addConstraint(Sketcher.Constraint("Diameter", 0, Q("3.2 mm")))
sketch7.addConstraint(Sketcher.Constraint("DistanceX", -1, 1, 0, 3, Q("12.6 mm")))
sketch7.addConstraint(Sketcher.Constraint("DistanceY", -1, 1, 0, 3, Q("147.2 mm")))
sketch7.addConstraint(Sketcher.Constraint("DistanceX", -1, 1, 1, 3, Q("82.3 mm")))
sketch7.addConstraint(Sketcher.Constraint("DistanceY", -1, 1, 2, 3, Q("69.8 mm")))
sketch7.setExpression("Constraints[7]", "Params.sketch7_diameter")
doc.recompute()
hole3 = body.newObject("PartDesign::Hole", "Hole002")
hole3.Profile = sketch7
hole3.ThreadType = "None"
hole3.setExpression("Diameter", "Params.hole3_diameter")
hole3.DepthType = "ThroughAll"

sketch8 = body.newObject("Sketcher::SketchObject", "Sketch007")
sketch8.AttachmentSupport = (doc.getObject("XY_Plane"), [""])
sketch8.MapMode = "FlatFace"
sketch8.AttachmentOffset = App.Placement(Vector(0, 0, 5), App.Rotation())
sketch8.addGeometry(Part.Circle(Vector(38.7, 131.3, 0), Vector(0, 0, 1), 2.4), False)
sketch8.addGeometry(Part.Circle(Vector(131.3, 151.3, 0), Vector(0, 0, 1), 2.4), False)
sketch8.addGeometry(Part.Circle(Vector(131.3, 8.7, 0), Vector(0, 0, 1), 2.4), False)
sketch8.addGeometry(Part.Circle(Vector(8.7, 8.7, 0), Vector(0, 0, 1), 2.4), False)
sketch8.addConstraint(Sketcher.Constraint("Equal", 0, 1))
sketch8.addConstraint(Sketcher.Constraint("Equal", 1, 2))
sketch8.addConstraint(Sketcher.Constraint("Equal", 2, 3))
sketch8.addConstraint(Sketcher.Constraint("Horizontal", 2, 3, 3, 3))
sketch8.addConstraint(Sketcher.Constraint("Vertical", 1, 3, 2, 3))
sketch8.addConstraint(Sketcher.Constraint("Diameter", 0, Q("4.8 mm")))
sketch8.addConstraint(Sketcher.Constraint("DistanceY", 0, 3, 1, 3, Q("20 mm")))
sketch8.addConstraint(Sketcher.Constraint("DistanceX", 3, 3, 0, 3, Q("30 mm")))
sketch8.addConstraint(Sketcher.Constraint("DistanceX", -1, 1, 0, 3, Q("38.7 mm")))
sketch8.addConstraint(Sketcher.Constraint("DistanceY", -1, 1, 0, 3, Q("131.3 mm")))
sketch8.addConstraint(Sketcher.Constraint("DistanceX", -1, 1, 1, 3, Q("131.3 mm")))
sketch8.addConstraint(Sketcher.Constraint("DistanceY", -1, 1, 2, 3, Q("8.7 mm")))
sketch8.setExpression("Constraints[5]", "Params.sketch8_diameter")
doc.recompute()
hole4 = body.newObject("PartDesign::Hole", "Hole003")
hole4.Profile = sketch8
hole4.ThreadType = "None"
hole4.setExpression("Diameter", "Params.hole4_diameter")
hole4.DepthType = "ThroughAll"
hole4.HoleCutType = "Counterbore"
hole4.setExpression("HoleCutDiameter", "Params.hole4_cbore_diameter")
hole4.setExpression("HoleCutDepth", "Params.hole4_cbore_depth")
doc.recompute()

fillet4 = body.newObject("PartDesign::Fillet", "Fillet003")
fillet4.Base = (hole4, edges_at(hole4, [
    (138.8, 80, 5),
    (1.2, 80, 5),
    (70, 1.2, 5),
    (70, 158.8, 5),
    (1.493, 158.507, 5),
    (1.493, 1.493, 5),
    (138.507, 1.493, 5),
    (138.507, 158.507, 5),
]))
fillet4.setExpression("Radius", "Params.fillet4_radius")

sketch9 = body.newObject("Sketcher::SketchObject", "Sketch008")
sketch9.AttachmentSupport = (doc.getObject("XY_Plane"), [""])
sketch9.MapMode = "FlatFace"
sketch9.AttachmentOffset = App.Placement(Vector(0, 0, 35), App.Rotation())
sketch9.addGeometry(Part.Circle(Vector(128.8, 118.8, 0), Vector(0, 0, 1), 1.6), False)
sketch9.addGeometry(Part.Circle(Vector(11.2, 53.8, 0), Vector(0, 0, 1), 1.6), False)
sketch9.addConstraint(Sketcher.Constraint("Equal", 0, 1))
sketch9.addConstraint(Sketcher.Constraint("Diameter", 0, Q("3.2 mm")))
sketch9.addConstraint(Sketcher.Constraint("DistanceY", 1, 3, 0, 3, Q("65 mm")))
sketch9.addConstraint(Sketcher.Constraint("DistanceX", -1, 1, 0, 3, Q("128.8 mm")))
sketch9.addConstraint(Sketcher.Constraint("DistanceY", -1, 1, 0, 3, Q("118.8 mm")))
sketch9.addConstraint(Sketcher.Constraint("DistanceX", -1, 1, 1, 3, Q("11.2 mm")))
sketch9.setExpression("Constraints[1]", "Params.sketch9_diameter")
doc.recompute()
hole5 = body.newObject("PartDesign::Hole", "Hole004")
hole5.Profile = sketch9
hole5.ThreadType = "None"
hole5.setExpression("Diameter", "Params.hole5_diameter")
hole5.DepthType = "Dimension"
hole5.setExpression("Depth", "Params.hole5_depth")
hole5.DrillPoint = "Angled"
hole5.DrillPointAngle = 118

doc.recompute()
